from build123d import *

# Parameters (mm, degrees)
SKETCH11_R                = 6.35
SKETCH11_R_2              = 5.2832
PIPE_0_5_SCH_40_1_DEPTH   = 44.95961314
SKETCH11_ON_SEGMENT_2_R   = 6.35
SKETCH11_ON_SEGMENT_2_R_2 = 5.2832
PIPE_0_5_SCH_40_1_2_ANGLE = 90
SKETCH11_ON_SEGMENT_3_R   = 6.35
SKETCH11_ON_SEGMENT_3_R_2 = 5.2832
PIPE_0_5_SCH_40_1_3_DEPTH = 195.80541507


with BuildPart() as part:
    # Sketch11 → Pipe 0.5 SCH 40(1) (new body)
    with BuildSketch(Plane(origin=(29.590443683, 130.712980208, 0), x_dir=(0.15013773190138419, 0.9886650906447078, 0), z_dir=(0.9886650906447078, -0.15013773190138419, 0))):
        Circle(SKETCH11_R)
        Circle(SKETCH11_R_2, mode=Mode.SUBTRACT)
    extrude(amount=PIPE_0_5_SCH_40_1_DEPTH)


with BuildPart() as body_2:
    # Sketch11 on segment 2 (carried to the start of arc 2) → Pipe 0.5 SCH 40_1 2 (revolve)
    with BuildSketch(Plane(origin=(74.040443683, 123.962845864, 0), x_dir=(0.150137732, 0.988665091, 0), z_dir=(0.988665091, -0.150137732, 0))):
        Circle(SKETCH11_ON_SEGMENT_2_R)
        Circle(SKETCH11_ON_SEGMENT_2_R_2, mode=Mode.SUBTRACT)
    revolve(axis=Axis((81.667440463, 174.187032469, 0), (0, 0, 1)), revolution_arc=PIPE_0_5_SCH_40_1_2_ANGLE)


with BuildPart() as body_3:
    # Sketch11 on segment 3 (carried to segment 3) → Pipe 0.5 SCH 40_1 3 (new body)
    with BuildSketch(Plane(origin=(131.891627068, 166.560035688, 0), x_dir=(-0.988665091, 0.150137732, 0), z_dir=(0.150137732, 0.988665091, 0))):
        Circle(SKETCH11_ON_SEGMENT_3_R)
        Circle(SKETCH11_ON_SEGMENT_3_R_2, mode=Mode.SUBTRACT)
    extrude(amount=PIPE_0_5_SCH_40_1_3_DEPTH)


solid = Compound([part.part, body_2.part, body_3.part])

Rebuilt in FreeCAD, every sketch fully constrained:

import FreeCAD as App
import Part
import Sketcher

V = App.Vector
Q = App.Units.Quantity

doc = App.newDocument("Part")
params = doc.addObject("Spreadsheet::Sheet", "Params")
for row, (alias, value) in enumerate([
    ("sketch1_diameter", "0.5 in"),
    ("sketch1_diameter2", "0.416 in"),
    ("pad1_length", "44.959613 mm"),
    ("sketch2_diameter", "0.5 in"),
    ("sketch2_diameter2", "0.416 in"),
    ("revolution_angle", "90 deg"),
    ("sketch3_diameter", "0.5 in"),
    ("sketch3_diameter2", "0.416 in"),
    ("pad2_length", "195.805415 mm"),
], start=1):
    params.set(f"A{row}", alias)
    params.set(f"B{row}", "=" + value)
    params.setAlias(f"B{row}", alias)

body = doc.addObject("PartDesign::Body", "Body")

# Sketch on an angled plane
sketch1 = body.newObject("Sketcher::SketchObject", "Sketch")
sketch1.Placement = App.Placement(V(29.590444, 130.71298, 0), App.Rotation(V(0.150137732, 0.988665091, 0), V(0, 0, 1.000000001), V(0.988665091, -0.150137732, 0), "ZXY"))
sketch1.addGeometry([
    Part.Circle(V(0, 0, 0), V(0, 0, 1), 6),
    Part.Circle(V(0, 0, 0), V(0, 0, 1), 5),
], False)
sketch1.addConstraint([
    Sketcher.Constraint("Coincident", 0, 3, -1, 1),
    Sketcher.Constraint("Coincident", 1, 3, -1, 1),
    Sketcher.Constraint("Diameter", 0, Q("0.5 in")),
    Sketcher.Constraint("Diameter", 1, Q("0.416 in")),
])
sketch1.setExpression("Constraints[2]", "Params.sketch1_diameter")
sketch1.setExpression("Constraints[3]", "Params.sketch1_diameter2")
pad1 = body.newObject("PartDesign::Pad", "Pad")
pad1.Profile = sketch1
pad1.setExpression("Length", "Params.pad1_length")
body2 = doc.addObject("PartDesign::Body", "Body001")

# Sketch on an angled plane
sketch2 = body2.newObject("Sketcher::SketchObject", "Sketch001")
sketch2.Placement = App.Placement(V(74.040444, 123.962846, 0), App.Rotation(V(0.150137732, 0.988665091, 0), V(0, 0, 1.000000001), V(0.988665091, -0.150137732, 0), "ZXY"))
sketch2.addGeometry([
    Part.Circle(V(0, 0, 0), V(0, 0, 1), 6),
    Part.Circle(V(0, 0, 0), V(0, 0, 1), 5),
], False)
sketch2.addGeometry(Part.LineSegment(V(51, 0, 0), V(51, 10, 0)), True)  # axis
sketch2.addConstraint([
    Sketcher.Constraint("Vertical", 2),
    Sketcher.Constraint("Coincident", 0, 3, -1, 1),
    Sketcher.Constraint("Coincident", 1, 3, -1, 1),
    Sketcher.Constraint("PointOnObject", 2, 1, -1),
    Sketcher.Constraint("Diameter", 0, Q("0.5 in")),
    Sketcher.Constraint("Diameter", 1, Q("0.416 in")),
    Sketcher.Constraint("DistanceX", -1, 1, 2, 1, Q("2 in")),
    Sketcher.Constraint("DistanceY", 2, 1, 2, 2, 10.0),
])
sketch2.setExpression("Constraints[4]", "Params.sketch2_diameter")
sketch2.setExpression("Constraints[5]", "Params.sketch2_diameter2")
revolution = body2.newObject("PartDesign::Revolution", "Revolution")
revolution.Profile = sketch2
revolution.ReferenceAxis = (sketch2, ["Axis0"])
revolution.setExpression("Angle", "Params.revolution_angle")
body3 = doc.addObject("PartDesign::Body", "Body002")

# Sketch on an angled plane
sketch3 = body3.newObject("Sketcher::SketchObject", "Sketch002")
sketch3.Placement = App.Placement(V(131.891627, 166.560036, 0), App.Rotation(V(-0.988665091, 0.150137732, 0), V(0, 0, 1.000000001), V(0.150137732, 0.988665091, 0), "ZXY"))
sketch3.addGeometry([
    Part.Circle(V(0, 0, 0), V(0, 0, 1), 6),
    Part.Circle(V(0, 0, 0), V(0, 0, 1), 5),
], False)
sketch3.addConstraint([
    Sketcher.Constraint("Coincident", 0, 3, -1, 1),
    Sketcher.Constraint("Coincident", 1, 3, -1, 1),
    Sketcher.Constraint("Diameter", 0, Q("0.5 in")),
    Sketcher.Constraint("Diameter", 1, Q("0.416 in")),
])
sketch3.setExpression("Constraints[2]", "Params.sketch3_diameter")
sketch3.setExpression("Constraints[3]", "Params.sketch3_diameter2")
pad2 = body3.newObject("PartDesign::Pad", "Pad001")
pad2.Profile = sketch3
pad2.setExpression("Length", "Params.pad2_length")

doc.recompute()
